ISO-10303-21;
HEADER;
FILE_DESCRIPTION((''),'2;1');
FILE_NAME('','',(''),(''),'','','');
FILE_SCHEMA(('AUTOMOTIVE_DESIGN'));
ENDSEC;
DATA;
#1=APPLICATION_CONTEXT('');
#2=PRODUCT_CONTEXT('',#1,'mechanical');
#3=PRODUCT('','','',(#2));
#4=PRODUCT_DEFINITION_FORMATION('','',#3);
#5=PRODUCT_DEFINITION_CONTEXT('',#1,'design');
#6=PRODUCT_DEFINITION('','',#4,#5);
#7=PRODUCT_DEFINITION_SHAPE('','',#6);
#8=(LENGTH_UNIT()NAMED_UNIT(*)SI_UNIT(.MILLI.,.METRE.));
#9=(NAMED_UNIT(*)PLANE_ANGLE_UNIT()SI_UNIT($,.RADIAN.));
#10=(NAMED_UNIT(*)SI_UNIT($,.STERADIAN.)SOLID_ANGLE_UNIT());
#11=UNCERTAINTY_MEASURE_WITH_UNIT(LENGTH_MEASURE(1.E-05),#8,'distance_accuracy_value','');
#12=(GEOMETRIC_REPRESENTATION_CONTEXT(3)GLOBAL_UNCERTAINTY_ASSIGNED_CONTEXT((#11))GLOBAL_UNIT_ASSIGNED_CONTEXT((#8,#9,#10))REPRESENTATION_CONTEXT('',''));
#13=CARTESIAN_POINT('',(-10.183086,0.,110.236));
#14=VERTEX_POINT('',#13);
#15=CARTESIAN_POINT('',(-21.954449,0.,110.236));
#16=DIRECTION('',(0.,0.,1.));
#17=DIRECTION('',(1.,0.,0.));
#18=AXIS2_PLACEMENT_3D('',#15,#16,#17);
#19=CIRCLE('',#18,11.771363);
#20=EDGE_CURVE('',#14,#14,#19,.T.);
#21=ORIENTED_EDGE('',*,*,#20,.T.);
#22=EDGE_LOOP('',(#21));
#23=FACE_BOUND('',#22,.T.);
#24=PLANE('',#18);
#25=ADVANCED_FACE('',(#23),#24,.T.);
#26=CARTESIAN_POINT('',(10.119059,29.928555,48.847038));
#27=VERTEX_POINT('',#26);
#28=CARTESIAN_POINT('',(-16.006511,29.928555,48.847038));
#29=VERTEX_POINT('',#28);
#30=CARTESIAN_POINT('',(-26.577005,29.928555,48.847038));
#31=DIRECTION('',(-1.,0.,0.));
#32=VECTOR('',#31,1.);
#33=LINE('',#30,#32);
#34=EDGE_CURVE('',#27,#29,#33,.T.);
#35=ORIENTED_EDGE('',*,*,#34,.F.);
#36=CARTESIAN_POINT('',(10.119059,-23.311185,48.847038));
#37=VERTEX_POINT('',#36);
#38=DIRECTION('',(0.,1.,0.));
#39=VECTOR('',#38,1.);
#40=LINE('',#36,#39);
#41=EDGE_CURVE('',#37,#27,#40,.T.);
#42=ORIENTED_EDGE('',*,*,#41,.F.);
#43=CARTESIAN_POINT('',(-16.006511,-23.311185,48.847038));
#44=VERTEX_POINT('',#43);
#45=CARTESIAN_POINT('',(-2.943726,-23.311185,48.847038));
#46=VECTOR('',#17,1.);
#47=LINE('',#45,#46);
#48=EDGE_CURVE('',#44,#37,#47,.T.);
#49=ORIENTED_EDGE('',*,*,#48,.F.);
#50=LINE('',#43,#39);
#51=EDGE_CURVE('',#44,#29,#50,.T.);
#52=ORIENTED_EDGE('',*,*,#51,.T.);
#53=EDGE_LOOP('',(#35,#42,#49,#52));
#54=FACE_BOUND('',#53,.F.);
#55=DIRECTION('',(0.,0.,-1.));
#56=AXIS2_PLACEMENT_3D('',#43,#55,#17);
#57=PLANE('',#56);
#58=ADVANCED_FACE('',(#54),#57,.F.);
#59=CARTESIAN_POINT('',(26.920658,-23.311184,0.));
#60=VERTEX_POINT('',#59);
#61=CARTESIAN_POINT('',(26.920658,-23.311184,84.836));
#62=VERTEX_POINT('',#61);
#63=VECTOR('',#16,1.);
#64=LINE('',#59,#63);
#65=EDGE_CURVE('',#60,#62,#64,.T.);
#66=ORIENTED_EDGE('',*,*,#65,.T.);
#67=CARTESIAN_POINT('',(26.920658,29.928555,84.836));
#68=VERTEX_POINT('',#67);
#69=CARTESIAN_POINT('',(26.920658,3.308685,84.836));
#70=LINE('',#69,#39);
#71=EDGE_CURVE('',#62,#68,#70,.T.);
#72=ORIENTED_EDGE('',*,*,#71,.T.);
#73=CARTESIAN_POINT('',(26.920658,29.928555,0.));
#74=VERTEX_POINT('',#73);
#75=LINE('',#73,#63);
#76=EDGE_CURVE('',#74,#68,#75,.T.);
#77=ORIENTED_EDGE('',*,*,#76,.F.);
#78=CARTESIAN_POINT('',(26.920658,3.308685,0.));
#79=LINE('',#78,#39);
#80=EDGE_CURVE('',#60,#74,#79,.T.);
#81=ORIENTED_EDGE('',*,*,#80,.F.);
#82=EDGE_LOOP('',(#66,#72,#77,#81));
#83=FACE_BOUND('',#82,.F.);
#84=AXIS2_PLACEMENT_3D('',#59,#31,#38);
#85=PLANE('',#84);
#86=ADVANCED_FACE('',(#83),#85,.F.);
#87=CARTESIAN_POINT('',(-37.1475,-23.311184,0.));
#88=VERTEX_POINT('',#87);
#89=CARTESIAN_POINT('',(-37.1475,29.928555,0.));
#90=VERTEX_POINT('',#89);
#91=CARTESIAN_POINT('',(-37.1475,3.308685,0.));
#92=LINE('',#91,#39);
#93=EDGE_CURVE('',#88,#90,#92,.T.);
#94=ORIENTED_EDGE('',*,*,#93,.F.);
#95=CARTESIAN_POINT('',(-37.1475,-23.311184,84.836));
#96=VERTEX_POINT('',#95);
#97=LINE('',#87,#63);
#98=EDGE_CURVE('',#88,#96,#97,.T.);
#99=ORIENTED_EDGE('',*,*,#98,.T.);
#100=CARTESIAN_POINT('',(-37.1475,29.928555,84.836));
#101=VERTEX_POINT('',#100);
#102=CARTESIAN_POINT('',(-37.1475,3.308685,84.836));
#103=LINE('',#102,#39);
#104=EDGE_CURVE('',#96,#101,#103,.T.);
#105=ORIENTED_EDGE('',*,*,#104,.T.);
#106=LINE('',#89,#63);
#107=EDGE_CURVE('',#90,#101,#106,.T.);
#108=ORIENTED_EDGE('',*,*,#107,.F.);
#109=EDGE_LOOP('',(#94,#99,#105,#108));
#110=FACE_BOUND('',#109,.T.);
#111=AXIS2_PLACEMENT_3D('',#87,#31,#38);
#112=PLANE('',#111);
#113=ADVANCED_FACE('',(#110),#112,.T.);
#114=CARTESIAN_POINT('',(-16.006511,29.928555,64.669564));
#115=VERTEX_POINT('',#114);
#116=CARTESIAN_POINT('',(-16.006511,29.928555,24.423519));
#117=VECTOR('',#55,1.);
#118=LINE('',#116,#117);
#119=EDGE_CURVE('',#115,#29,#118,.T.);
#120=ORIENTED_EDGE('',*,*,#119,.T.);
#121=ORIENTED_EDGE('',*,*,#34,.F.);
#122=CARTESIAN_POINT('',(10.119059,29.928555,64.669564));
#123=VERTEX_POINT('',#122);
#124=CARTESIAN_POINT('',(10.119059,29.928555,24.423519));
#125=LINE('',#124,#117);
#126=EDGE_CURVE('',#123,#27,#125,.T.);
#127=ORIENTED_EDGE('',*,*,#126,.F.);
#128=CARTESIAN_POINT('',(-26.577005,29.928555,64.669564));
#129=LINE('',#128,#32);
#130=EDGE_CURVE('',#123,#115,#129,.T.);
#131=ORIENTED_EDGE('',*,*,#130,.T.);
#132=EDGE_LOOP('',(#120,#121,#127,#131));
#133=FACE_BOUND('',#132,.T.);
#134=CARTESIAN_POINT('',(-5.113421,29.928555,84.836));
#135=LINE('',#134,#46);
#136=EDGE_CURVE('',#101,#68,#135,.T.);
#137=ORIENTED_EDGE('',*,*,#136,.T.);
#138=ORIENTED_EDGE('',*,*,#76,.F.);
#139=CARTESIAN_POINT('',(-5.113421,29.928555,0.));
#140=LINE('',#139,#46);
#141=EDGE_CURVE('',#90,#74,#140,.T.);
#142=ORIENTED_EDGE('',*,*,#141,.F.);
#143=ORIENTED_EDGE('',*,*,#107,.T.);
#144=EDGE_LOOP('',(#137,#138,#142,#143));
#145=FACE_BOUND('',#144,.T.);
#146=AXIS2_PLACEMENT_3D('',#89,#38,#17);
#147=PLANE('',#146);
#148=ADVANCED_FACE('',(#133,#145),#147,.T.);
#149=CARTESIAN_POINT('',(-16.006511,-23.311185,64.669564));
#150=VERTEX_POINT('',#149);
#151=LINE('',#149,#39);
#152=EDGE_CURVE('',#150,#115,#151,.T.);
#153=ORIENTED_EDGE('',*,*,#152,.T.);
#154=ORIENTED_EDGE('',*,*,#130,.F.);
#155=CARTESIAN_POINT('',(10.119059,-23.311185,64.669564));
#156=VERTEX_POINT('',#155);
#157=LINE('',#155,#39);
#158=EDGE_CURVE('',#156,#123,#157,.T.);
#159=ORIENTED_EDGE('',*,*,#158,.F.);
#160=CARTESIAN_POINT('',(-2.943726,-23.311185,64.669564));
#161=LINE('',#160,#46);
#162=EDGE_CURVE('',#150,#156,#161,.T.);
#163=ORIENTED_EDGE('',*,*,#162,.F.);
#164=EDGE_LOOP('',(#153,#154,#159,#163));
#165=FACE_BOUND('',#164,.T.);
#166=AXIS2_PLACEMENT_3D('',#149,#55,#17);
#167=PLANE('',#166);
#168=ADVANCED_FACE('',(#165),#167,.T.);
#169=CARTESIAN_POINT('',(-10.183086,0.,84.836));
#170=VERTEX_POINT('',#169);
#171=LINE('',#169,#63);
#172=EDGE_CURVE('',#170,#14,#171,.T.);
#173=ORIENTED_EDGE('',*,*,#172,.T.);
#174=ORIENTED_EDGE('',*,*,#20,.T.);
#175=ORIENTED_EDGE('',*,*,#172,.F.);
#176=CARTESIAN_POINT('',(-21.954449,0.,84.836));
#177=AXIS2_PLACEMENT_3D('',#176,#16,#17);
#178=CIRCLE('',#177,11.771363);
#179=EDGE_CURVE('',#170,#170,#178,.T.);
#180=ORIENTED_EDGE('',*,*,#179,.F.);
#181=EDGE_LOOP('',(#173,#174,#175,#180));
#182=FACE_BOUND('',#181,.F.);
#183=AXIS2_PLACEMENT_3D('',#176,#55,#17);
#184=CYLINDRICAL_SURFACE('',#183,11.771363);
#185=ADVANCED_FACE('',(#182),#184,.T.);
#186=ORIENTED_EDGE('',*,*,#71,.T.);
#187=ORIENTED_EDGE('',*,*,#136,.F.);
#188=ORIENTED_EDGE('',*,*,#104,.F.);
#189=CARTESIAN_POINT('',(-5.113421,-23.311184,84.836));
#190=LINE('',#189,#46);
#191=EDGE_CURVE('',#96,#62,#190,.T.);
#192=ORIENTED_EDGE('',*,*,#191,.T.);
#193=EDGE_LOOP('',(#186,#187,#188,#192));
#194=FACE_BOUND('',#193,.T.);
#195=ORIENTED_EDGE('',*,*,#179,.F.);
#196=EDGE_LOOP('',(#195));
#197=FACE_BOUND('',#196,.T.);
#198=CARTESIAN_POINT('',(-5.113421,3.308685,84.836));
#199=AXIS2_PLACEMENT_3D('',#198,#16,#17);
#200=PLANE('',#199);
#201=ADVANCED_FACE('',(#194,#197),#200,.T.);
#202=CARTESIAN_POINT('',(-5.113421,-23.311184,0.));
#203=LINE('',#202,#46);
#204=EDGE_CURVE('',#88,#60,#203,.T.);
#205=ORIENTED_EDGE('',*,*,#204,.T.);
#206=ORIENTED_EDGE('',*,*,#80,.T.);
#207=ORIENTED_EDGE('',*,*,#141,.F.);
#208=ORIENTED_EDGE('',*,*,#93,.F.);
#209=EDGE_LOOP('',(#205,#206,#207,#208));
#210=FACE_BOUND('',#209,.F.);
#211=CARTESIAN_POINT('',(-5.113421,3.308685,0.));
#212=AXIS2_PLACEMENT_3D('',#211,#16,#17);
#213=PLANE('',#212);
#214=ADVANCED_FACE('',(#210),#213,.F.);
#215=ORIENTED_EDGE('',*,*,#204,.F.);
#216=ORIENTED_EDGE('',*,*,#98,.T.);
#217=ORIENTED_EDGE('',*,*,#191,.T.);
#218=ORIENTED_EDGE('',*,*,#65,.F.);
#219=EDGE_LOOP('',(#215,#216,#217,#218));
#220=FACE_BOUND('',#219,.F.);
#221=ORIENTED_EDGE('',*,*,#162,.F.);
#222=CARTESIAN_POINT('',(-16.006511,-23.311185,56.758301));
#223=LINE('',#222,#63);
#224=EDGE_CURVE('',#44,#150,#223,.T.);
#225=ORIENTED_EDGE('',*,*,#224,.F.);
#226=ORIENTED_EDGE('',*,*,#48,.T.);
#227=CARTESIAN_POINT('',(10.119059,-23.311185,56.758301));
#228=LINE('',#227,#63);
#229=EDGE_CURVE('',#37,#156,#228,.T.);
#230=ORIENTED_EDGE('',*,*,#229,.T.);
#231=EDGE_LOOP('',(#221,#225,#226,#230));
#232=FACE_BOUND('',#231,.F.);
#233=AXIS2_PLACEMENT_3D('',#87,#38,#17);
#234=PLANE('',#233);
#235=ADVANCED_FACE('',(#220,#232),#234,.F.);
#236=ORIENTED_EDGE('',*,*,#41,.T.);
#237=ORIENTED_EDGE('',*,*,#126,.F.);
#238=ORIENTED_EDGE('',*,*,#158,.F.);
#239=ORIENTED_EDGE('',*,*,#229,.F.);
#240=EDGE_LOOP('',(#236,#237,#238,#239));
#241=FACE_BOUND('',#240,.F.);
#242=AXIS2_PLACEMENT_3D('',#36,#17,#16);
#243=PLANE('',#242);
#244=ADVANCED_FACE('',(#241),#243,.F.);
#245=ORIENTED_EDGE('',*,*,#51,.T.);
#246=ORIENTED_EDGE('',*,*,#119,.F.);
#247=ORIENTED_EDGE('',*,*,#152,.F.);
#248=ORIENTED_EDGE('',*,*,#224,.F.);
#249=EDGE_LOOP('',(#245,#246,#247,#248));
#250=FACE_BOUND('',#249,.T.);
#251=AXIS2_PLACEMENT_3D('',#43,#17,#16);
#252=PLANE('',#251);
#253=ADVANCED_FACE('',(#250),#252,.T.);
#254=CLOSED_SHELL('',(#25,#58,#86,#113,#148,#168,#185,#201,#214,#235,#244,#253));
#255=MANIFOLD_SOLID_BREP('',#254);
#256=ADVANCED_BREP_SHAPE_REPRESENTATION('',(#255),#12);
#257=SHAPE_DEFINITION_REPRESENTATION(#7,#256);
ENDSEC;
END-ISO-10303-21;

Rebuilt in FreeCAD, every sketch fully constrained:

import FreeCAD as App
import Part
import Sketcher
from FreeCAD import Vector
Q = App.Units.Quantity

doc = App.newDocument("Part")
params = doc.addObject("Spreadsheet::Sheet", "Params")
for row, (alias, value) in enumerate([
    ("pad1_length", "3.34 in"),
    ("pad2_length", "1 in"),
    ("pocket1_length", "3.25 in"),
], start=1):
    params.set(f"A{row}", alias)
    params.set(f"B{row}", "=" + value)
    params.setAlias(f"B{row}", alias)

body = doc.addObject("PartDesign::Body", "Body")

# Sketch on XY plane
sketch1 = doc.addObject("Sketcher::SketchObject", "Sketch")
body.addObject(sketch1)
sketch1.AttachmentSupport = (doc.XY_Plane, [""])
sketch1.MapMode = "FlatFace"
sketch1.addGeometry([
    Part.LineSegment(Vector(-37, 30, 0), Vector(-37, -23, 0)),
    Part.LineSegment(Vector(-37, -23, 0), Vector(27, -23, 0)),
    Part.LineSegment(Vector(27, -23, 0), Vector(27, 30, 0)),
    Part.LineSegment(Vector(27, 30, 0), Vector(-37, 30, 0)),
], False)
sketch1.addConstraint([
    Sketcher.Constraint("Coincident", 0, 2, 1, 1),
    Sketcher.Constraint("Coincident", 1, 2, 2, 1),
    Sketcher.Constraint("Coincident", 2, 2, 3, 1),
    Sketcher.Constraint("Coincident", 3, 2, 0, 1),
    Sketcher.Constraint("Vertical", 0),
    Sketcher.Constraint("Horizontal", 1),
    Sketcher.Constraint("Vertical", 2),
    Sketcher.Constraint("Horizontal", 3),
    Sketcher.Constraint("DistanceX", 0, 2, -1, 1, Q("1.4625 in")),
    Sketcher.Constraint("DistanceY", 0, 2, 0, 1, Q("53.239739 mm")),
    Sketcher.Constraint("DistanceX", 1, 1, 1, 2, Q("64.068158 mm")),
    Sketcher.Constraint("DistanceY", 0, 2, -1, 1, Q("23.311184 mm")),
])
pad1 = doc.addObject("PartDesign::Pad", "Pad")
body.addObject(pad1)
pad1.Profile = sketch1
pad1.setExpression("Length", "Params.pad1_length")

# Sketch on XY plane
sketch2 = doc.addObject("Sketcher::SketchObject", "Sketch001")
body.addObject(sketch2)
sketch2.AttachmentSupport = (doc.XY_Plane, [""])
sketch2.MapMode = "FlatFace"
sketch2.AttachmentOffset = App.Placement(Vector(0, 0, 3.34 * 25.4), App.Rotation())
sketch2.addGeometry(Part.Circle(Vector(-22, 0, 0), Vector(0, 0, 1), 12), False)
sketch2.addConstraint([
    Sketcher.Constraint("PointOnObject", 0, 3, -1),
    Sketcher.Constraint("Diameter", 0, Q("23.542726 mm")),
    Sketcher.Constraint("DistanceX", 0, 3, -1, 1, Q("21.954449 mm")),
])
pad2 = doc.addObject("PartDesign::Pad", "Pad001")
body.addObject(pad2)
pad2.Profile = sketch2
pad2.setExpression("Length", "Params.pad2_length")

# Sketch on XZ plane
sketch3 = doc.addObject("Sketcher::SketchObject", "Sketch002")
body.addObject(sketch3)
sketch3.AttachmentSupport = (doc.XZ_Plane, [""])
sketch3.MapMode = "FlatFace"
sketch3.AttachmentOffset = App.Placement(Vector(0, 0, 23.311185), App.Rotation())
sketch3.addGeometry([
    Part.LineSegment(Vector(-16, 65, 0), Vector(-16, 49, 0)),
    Part.LineSegment(Vector(-16, 49, 0), Vector(10, 49, 0)),
    Part.LineSegment(Vector(10, 49, 0), Vector(10, 65, 0)),
    Part.LineSegment(Vector(10, 65, 0), Vector(-16, 65, 0)),
], False)
sketch3.addConstraint([
    Sketcher.Constraint("Coincident", 0, 2, 1, 1),
    Sketcher.Constraint("Coincident", 1, 2, 2, 1),
    Sketcher.Constraint("Coincident", 2, 2, 3, 1),
    Sketcher.Constraint("Coincident", 3, 2, 0, 1),
    Sketcher.Constraint("Vertical", 0),
    Sketcher.Constraint("Horizontal", 1),
    Sketcher.Constraint("Vertical", 2),
    Sketcher.Constraint("Horizontal", 3),
    Sketcher.Constraint("DistanceX", 1, 1, 1, 2, Q("26.12557 mm")),
    Sketcher.Constraint("DistanceY", 0, 2, 0, 1, Q("15.822526 mm")),
    Sketcher.Constraint("DistanceX", 0, 2, -1, 1, Q("16.006511 mm")),
    Sketcher.Constraint("DistanceY", -1, 1, 0, 2, Q("48.847038 mm")),
])
pocket1 = doc.addObject("PartDesign::Pocket", "Pocket")
body.addObject(pocket1)
pocket1.Profile = sketch3
pocket1.setExpression("Length", "Params.pocket1_length")

doc.recompute()
